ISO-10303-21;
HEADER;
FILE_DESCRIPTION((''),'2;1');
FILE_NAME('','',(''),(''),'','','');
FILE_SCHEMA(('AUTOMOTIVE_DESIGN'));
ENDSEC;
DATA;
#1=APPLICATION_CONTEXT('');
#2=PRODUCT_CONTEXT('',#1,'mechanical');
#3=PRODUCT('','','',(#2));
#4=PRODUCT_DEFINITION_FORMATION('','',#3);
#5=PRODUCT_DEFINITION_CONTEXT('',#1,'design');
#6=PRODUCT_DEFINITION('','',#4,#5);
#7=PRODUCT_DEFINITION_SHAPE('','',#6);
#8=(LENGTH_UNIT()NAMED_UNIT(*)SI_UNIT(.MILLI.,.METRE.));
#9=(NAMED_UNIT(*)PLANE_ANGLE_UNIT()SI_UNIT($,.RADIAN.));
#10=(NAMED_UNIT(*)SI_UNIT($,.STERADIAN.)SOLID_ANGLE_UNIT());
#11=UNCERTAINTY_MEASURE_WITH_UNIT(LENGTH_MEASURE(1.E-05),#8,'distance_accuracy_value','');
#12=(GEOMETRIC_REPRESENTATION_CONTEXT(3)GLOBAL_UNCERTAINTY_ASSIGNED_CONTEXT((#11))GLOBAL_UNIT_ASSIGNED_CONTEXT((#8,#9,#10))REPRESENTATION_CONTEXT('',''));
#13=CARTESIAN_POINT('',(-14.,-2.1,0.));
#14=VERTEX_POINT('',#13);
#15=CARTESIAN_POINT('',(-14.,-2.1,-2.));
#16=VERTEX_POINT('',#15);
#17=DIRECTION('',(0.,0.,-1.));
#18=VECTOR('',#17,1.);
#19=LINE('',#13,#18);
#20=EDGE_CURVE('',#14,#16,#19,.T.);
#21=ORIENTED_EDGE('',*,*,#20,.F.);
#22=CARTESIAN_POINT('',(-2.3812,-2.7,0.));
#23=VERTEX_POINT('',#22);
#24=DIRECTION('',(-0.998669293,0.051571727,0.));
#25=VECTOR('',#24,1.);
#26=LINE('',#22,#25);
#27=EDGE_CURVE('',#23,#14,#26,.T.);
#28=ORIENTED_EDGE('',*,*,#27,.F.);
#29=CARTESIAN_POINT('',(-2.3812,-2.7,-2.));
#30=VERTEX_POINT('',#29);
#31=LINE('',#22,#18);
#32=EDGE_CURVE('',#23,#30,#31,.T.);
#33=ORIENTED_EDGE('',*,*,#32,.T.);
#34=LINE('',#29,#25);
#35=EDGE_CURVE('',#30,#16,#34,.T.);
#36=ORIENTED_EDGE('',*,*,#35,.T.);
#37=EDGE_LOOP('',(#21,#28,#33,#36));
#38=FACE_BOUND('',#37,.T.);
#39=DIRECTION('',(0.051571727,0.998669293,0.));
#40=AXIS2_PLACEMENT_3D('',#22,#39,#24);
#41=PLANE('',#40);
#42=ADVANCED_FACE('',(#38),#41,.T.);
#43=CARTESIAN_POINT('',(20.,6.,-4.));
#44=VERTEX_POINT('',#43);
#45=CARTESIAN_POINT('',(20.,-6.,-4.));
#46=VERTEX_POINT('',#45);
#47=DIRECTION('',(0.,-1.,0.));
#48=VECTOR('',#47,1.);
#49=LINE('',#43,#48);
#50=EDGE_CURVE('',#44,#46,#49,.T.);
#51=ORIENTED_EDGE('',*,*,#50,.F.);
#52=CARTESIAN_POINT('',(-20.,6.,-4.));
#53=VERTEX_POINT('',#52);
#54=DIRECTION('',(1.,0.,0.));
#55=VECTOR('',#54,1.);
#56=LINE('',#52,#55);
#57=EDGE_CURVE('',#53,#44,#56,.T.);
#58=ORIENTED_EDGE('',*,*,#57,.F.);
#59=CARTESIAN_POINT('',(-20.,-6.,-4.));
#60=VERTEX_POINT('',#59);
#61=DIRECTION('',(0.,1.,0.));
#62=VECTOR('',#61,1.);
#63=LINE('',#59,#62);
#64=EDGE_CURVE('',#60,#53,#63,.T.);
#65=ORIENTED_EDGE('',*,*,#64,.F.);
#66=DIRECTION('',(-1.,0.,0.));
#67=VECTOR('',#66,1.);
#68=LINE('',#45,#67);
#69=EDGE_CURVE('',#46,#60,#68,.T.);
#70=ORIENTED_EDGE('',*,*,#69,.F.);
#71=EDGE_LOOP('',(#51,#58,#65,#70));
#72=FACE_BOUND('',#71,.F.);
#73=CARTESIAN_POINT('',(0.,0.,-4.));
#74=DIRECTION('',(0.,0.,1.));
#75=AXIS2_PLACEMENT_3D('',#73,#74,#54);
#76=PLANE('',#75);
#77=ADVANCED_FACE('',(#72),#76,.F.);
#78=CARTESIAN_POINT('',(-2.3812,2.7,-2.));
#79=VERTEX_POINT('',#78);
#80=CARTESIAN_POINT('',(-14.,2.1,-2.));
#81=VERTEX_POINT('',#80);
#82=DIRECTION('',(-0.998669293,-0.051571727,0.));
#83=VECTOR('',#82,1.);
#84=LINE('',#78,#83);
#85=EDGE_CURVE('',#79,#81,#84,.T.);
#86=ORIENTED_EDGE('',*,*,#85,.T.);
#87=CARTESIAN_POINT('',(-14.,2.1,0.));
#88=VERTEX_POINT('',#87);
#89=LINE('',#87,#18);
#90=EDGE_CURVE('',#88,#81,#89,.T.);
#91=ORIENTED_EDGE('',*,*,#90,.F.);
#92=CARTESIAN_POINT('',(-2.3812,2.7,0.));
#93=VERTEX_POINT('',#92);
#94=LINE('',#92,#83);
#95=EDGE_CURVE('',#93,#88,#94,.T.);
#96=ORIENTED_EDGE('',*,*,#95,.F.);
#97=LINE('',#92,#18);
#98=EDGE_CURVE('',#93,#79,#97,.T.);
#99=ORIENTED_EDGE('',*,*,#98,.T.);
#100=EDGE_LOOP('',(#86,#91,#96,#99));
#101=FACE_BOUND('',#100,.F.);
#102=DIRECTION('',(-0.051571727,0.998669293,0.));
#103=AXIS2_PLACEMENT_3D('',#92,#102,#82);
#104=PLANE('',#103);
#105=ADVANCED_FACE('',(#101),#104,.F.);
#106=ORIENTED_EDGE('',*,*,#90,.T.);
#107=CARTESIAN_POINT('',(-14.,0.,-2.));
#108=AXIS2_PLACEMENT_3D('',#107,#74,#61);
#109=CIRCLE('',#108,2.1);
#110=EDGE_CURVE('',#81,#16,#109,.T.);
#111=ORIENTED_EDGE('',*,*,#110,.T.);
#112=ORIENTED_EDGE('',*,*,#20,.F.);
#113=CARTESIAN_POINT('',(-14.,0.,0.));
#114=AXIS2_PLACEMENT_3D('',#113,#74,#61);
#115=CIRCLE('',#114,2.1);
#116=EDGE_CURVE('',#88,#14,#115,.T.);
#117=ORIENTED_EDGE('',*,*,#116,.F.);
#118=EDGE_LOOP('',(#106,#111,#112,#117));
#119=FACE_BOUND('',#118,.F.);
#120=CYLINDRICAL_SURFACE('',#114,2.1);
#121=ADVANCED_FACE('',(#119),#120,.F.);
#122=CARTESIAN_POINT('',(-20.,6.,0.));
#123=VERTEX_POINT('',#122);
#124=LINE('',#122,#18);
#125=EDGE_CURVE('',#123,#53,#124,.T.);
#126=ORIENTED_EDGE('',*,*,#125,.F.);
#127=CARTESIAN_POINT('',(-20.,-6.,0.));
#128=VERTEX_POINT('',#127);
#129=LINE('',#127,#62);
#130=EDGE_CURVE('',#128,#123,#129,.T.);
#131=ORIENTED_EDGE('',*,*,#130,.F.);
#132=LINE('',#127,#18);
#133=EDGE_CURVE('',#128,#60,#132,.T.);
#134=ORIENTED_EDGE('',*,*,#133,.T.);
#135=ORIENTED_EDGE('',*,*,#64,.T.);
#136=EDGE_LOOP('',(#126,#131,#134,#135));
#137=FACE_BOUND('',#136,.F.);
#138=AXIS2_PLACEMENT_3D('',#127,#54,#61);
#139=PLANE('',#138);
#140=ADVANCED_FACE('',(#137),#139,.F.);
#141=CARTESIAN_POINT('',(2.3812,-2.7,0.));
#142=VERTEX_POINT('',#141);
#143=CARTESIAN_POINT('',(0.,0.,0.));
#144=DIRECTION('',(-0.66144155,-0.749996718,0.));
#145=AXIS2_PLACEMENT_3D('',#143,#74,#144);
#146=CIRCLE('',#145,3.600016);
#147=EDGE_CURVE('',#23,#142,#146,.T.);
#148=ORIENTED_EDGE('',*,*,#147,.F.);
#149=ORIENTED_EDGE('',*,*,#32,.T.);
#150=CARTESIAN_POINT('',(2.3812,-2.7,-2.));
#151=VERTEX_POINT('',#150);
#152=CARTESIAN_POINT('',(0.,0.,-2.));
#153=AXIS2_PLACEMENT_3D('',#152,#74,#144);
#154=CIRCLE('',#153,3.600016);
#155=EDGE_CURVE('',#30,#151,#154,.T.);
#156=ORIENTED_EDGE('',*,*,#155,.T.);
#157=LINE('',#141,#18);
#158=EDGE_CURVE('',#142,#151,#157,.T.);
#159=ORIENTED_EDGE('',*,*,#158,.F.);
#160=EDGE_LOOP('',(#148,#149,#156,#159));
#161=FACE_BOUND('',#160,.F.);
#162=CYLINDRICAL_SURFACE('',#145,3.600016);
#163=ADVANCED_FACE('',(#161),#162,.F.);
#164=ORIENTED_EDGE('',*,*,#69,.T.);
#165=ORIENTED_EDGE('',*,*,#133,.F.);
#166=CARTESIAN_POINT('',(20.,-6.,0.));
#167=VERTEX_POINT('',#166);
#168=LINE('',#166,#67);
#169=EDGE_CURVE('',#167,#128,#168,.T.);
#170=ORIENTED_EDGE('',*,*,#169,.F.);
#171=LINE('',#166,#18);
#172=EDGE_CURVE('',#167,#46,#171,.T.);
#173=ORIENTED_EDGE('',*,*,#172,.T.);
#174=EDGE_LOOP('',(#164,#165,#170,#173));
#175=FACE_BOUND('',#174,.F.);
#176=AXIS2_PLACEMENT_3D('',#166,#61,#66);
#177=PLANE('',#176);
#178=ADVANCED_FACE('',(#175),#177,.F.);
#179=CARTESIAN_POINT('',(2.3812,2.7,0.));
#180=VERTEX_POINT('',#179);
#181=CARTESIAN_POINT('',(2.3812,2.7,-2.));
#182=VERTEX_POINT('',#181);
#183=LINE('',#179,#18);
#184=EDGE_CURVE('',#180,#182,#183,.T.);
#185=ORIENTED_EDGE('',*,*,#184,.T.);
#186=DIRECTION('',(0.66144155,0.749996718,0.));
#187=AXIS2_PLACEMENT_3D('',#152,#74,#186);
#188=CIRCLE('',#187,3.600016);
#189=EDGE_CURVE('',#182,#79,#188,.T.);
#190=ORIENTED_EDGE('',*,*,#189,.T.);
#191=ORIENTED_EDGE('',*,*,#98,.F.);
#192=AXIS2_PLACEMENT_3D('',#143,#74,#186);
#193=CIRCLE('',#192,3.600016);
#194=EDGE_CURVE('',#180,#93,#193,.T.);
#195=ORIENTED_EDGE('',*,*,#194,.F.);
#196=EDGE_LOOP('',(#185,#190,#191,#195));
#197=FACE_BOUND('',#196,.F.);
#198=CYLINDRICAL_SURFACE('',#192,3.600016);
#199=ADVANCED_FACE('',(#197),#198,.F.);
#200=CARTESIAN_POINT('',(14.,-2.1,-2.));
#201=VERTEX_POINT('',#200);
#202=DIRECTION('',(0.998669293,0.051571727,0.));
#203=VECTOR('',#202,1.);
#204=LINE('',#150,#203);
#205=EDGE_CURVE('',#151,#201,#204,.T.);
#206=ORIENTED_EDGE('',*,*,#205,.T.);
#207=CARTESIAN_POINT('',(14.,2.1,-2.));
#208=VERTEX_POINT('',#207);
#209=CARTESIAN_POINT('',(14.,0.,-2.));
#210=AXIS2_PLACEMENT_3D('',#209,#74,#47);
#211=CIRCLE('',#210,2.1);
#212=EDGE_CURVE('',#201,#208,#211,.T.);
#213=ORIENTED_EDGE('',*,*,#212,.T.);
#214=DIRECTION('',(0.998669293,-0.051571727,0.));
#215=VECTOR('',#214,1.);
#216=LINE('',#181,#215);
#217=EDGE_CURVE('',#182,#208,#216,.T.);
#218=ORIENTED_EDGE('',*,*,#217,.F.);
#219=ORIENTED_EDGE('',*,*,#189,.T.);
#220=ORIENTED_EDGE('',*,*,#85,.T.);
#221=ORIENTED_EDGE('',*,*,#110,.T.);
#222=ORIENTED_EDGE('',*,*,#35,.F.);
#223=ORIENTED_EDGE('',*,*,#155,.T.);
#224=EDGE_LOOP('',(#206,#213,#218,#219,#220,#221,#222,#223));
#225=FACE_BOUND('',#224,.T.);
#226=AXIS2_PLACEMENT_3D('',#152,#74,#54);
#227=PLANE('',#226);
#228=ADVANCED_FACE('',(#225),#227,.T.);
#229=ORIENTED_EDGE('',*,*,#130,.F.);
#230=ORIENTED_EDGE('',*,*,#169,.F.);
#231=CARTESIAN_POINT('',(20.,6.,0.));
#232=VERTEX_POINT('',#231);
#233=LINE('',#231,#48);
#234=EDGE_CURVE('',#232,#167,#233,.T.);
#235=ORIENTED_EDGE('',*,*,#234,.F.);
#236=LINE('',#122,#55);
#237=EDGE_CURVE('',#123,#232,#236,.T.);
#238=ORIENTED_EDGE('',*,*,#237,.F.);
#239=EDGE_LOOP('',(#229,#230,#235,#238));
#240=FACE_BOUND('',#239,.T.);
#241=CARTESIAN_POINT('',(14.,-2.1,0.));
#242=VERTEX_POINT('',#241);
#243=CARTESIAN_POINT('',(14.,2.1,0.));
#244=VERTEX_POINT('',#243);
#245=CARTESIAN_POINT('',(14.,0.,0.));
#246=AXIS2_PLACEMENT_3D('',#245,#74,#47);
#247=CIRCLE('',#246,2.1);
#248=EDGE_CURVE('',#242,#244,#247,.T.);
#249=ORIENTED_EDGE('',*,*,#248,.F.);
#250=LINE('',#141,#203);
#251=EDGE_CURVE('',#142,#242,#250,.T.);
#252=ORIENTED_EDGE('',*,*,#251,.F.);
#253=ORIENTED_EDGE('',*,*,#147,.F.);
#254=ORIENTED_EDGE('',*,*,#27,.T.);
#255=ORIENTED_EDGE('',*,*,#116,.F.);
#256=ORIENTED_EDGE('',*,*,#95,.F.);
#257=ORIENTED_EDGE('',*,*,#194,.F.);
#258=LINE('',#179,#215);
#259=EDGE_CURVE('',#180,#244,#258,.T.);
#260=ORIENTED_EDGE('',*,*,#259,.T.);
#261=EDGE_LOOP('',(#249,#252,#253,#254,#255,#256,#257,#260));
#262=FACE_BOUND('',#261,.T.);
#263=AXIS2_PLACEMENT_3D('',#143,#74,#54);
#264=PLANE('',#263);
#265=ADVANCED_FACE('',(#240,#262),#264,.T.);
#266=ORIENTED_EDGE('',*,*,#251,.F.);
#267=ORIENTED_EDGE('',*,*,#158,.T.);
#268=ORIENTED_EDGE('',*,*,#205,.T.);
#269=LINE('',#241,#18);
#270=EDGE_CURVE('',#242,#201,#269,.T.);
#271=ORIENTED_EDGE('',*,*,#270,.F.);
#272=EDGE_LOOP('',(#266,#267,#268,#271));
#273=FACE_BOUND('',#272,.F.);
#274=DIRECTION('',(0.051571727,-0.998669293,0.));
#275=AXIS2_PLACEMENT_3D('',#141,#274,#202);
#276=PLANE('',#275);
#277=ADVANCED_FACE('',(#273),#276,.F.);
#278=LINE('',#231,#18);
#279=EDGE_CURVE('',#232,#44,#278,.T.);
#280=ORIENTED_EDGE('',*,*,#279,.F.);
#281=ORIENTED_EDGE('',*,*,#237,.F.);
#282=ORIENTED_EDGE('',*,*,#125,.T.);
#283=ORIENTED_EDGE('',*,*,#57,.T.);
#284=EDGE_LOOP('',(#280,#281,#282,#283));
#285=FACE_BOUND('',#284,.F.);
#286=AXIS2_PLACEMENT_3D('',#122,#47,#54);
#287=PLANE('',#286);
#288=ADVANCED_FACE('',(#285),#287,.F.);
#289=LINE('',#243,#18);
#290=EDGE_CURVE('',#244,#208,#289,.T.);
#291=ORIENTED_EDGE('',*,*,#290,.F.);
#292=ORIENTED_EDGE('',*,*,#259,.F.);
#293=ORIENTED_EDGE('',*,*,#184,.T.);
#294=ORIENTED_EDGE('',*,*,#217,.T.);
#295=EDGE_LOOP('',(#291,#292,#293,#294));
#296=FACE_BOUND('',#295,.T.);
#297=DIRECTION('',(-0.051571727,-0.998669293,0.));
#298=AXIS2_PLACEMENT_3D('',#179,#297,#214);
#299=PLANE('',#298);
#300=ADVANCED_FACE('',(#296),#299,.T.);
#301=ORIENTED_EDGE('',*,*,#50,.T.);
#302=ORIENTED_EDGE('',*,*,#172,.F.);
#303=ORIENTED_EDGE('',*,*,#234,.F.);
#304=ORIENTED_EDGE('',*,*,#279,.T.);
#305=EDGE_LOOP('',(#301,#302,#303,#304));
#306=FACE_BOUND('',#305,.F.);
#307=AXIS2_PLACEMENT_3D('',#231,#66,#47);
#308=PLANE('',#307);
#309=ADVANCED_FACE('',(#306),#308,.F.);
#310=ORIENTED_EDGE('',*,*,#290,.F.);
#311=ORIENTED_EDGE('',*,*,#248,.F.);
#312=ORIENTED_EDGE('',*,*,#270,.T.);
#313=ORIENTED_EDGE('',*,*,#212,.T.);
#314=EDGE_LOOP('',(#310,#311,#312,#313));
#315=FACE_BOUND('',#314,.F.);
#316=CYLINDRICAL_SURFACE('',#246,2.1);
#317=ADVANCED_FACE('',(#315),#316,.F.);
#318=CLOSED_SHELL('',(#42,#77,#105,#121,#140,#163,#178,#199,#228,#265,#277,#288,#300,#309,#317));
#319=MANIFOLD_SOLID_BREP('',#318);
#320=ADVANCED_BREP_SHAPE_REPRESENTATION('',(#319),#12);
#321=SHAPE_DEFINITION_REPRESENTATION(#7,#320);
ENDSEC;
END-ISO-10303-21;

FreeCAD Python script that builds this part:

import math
import FreeCAD as App
import Part
import Sketcher
Q = App.Units.Quantity

doc = App.newDocument("Part")
body = doc.addObject("PartDesign::Body", "Body")

# Sketch on XY plane
sketch1 = doc.addObject("Sketcher::SketchObject", "Sketch")
body.addObject(sketch1)
sketch1.AttachmentSupport = (doc.XY_Plane, [""])
sketch1.MapMode = "FlatFace"
sketch1.addGeometry(Part.LineSegment(App.Vector(20, 6, 0), App.Vector(-20, 6, 0)), False)
sketch1.addGeometry(Part.LineSegment(App.Vector(-20, 6, 0), App.Vector(-20, -6, 0)), False)
sketch1.addGeometry(Part.LineSegment(App.Vector(-20, -6, 0), App.Vector(20, -6, 0)), False)
sketch1.addGeometry(Part.LineSegment(App.Vector(20, -6, 0), App.Vector(20, 6, 0)), False)
sketch1.addConstraint(Sketcher.Constraint("Coincident", 0, 2, 1, 1))
sketch1.addConstraint(Sketcher.Constraint("Coincident", 1, 2, 2, 1))
sketch1.addConstraint(Sketcher.Constraint("Coincident", 2, 2, 3, 1))
sketch1.addConstraint(Sketcher.Constraint("Coincident", 3, 2, 0, 1))
sketch1.addConstraint(Sketcher.Constraint("Horizontal", 0))
sketch1.addConstraint(Sketcher.Constraint("Vertical", 1))
sketch1.addConstraint(Sketcher.Constraint("Horizontal", 2))
sketch1.addConstraint(Sketcher.Constraint("Vertical", 3))
sketch1.addConstraint(Sketcher.Constraint("Symmetric", 0, 2, 2, 2, -1, 1))
sketch1.addConstraint(Sketcher.Constraint("DistanceX", 0, 2, 0, 1, Q("40 mm")))
sketch1.addConstraint(Sketcher.Constraint("DistanceY", 1, 2, 1, 1, Q("12 mm")))
pad1 = doc.addObject("PartDesign::Pad", "Pad")
body.addObject(pad1)
pad1.Profile = sketch1
pad1.Length = 4
pad1.Reversed = True

# Sketch on XY plane
sketch2 = doc.addObject("Sketcher::SketchObject", "Sketch001")
body.addObject(sketch2)
sketch2.AttachmentSupport = (doc.XY_Plane, [""])
sketch2.MapMode = "FlatFace"
sketch2.addGeometry(Part.LineSegment(App.Vector(2.3812, -2.7, 0), App.Vector(14, -2.1, 0)), False)
sketch2.addGeometry(Part.ArcOfCircle(Part.Circle(App.Vector(14, 0, 0), App.Vector(0, 0, 1), 2.1), math.radians(-90), math.radians(90)), False)
sketch2.addGeometry(Part.LineSegment(App.Vector(14, 2.1, 0), App.Vector(2.3812, 2.7, 0)), False)
sketch2.addGeometry(Part.ArcOfCircle(Part.Circle(App.Vector(0, 0, 0), App.Vector(0, 0, 1), 3.600016), math.radians(48.590094), math.radians(131.409906)), False)
sketch2.addGeometry(Part.LineSegment(App.Vector(-2.3812, 2.7, 0), App.Vector(-14, 2.1, 0)), False)
sketch2.addGeometry(Part.ArcOfCircle(Part.Circle(App.Vector(-14, 0, 0), App.Vector(0, 0, 1), 2.1), math.radians(90), math.radians(270)), False)
sketch2.addGeometry(Part.LineSegment(App.Vector(-14, -2.1, 0), App.Vector(-2.3812, -2.7, 0)), False)
sketch2.addGeometry(Part.ArcOfCircle(Part.Circle(App.Vector(0, 0, 0), App.Vector(0, 0, 1), 3.600016), math.radians(-131.409906), math.radians(-48.590094)), False)
sketch2.addConstraint(Sketcher.Constraint("Coincident", 0, 2, 1, 1))
sketch2.addConstraint(Sketcher.Constraint("Coincident", 1, 2, 2, 1))
sketch2.addConstraint(Sketcher.Constraint("Coincident", 2, 2, 3, 1))
sketch2.addConstraint(Sketcher.Constraint("Coincident", 3, 2, 4, 1))
sketch2.addConstraint(Sketcher.Constraint("Coincident", 4, 2, 5, 1))
sketch2.addConstraint(Sketcher.Constraint("Coincident", 5, 2, 6, 1))
sketch2.addConstraint(Sketcher.Constraint("Coincident", 6, 2, 7, 1))
sketch2.addConstraint(Sketcher.Constraint("Coincident", 7, 2, 0, 1))
sketch2.addConstraint(Sketcher.Constraint("Coincident", 3, 3, -1, 1))
sketch2.addConstraint(Sketcher.Constraint("Coincident", 7, 3, -1, 1))
sketch2.addConstraint(Sketcher.Constraint("Equal", 1, 5))
sketch2.addConstraint(Sketcher.Constraint("Equal", 3, 7))
sketch2.addConstraint(Sketcher.Constraint("Symmetric", 1, 3, 5, 3, -1, 1))
sketch2.addConstraint(Sketcher.Constraint("Symmetric", 1, 2, 4, 2, -2))
sketch2.addConstraint(Sketcher.Constraint("Parallel", 0, 4))
sketch2.addConstraint(Sketcher.Constraint("Parallel", 2, 6))
sketch2.addConstraint(Sketcher.Constraint("Horizontal", 2, 2, 3, 2))
sketch2.addConstraint(Sketcher.Constraint("Horizontal", 6, 2, 7, 2))
sketch2.addConstraint(Sketcher.Constraint("Vertical", 1, 3, 0, 2))
sketch2.addConstraint(Sketcher.Constraint("Vertical", 0, 2, 1, 2))
sketch2.addConstraint(Sketcher.Constraint("DistanceY", -1, 1, 2, 2, Q("2.7 mm")))
sketch2.addConstraint(Sketcher.Constraint("Radius", 1, Q("2.1 mm")))
sketch2.addConstraint(Sketcher.Constraint("Radius", 3, Q("3.6 mm")))
sketch2.addConstraint(Sketcher.Constraint("DistanceX", -1, 1, 1, 3, Q("14 mm")))
pocket1 = doc.addObject("PartDesign::Pocket", "Pocket")
body.addObject(pocket1)
pocket1.Profile = sketch2
pocket1.Length = 2

doc.recompute()
